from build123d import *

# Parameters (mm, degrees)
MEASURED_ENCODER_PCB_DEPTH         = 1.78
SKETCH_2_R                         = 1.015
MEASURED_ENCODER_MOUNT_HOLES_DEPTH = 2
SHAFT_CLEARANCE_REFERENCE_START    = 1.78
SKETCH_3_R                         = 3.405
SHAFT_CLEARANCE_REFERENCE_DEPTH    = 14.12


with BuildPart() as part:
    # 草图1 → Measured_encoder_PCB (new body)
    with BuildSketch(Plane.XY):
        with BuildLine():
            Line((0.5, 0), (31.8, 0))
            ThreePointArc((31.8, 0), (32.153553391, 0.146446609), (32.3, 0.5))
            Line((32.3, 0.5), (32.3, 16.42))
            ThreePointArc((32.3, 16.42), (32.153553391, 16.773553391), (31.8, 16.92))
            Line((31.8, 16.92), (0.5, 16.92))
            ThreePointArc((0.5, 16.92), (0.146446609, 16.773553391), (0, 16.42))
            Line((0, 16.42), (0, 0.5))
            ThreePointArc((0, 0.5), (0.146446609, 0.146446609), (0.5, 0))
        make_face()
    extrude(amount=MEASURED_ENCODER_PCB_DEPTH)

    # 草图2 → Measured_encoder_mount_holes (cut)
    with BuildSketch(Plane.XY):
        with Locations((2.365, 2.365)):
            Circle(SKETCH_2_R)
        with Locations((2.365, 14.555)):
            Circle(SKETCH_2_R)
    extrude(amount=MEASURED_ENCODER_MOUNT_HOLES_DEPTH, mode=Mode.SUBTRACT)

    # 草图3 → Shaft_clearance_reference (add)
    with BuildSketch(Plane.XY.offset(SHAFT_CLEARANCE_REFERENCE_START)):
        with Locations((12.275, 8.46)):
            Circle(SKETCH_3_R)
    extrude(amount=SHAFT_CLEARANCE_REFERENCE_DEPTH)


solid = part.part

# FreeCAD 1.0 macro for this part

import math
import FreeCAD as App
import Part
import Sketcher
from FreeCAD import Vector
Q = App.Units.Quantity

doc = App.newDocument("Part")
params = doc.addObject("Spreadsheet::Sheet", "Params")
for row, (alias, value) in enumerate([
    ("sketch1_radius", "0.5 mm"),
    ("sketch1_width", "31.3 mm"),
    ("sketch1_height", "15.92 mm"),
    ("pad1_length", "1.78 mm"),
    ("sketch2_diameter", "2.03 mm"),
    ("pocket1_length", "2 mm"),
    ("sketch3_diameter", "6.81 mm"),
    ("pad2_length", "14.12 mm"),
], start=1):
    params.set(f"A{row}", alias)
    params.set(f"B{row}", "=" + value)
    params.setAlias(f"B{row}", alias)

body = doc.addObject("PartDesign::Body", "Body")

# Sketch on XY plane
sketch1 = body.newObject("Sketcher::SketchObject", "Sketch")
sketch1.AttachmentSupport = (doc.getObject("XY_Plane"), [""])
sketch1.MapMode = "FlatFace"
sketch1.addGeometry([
    Part.LineSegment(Vector(0.5, 0, 0), Vector(31.8, 0, 0)),  # 0
    Part.ArcOfCircle(Part.Circle(Vector(31.8, 0.5, 0), Vector(0, 0, 1), 0.5), math.radians(-90), math.radians(0)),  # 1
    Part.LineSegment(Vector(32.3, 0.5, 0), Vector(32.3, 16.42, 0)),  # 2
    Part.ArcOfCircle(Part.Circle(Vector(31.8, 16.42, 0), Vector(0, 0, 1), 0.5), math.radians(0), math.radians(90)),  # 3
    Part.LineSegment(Vector(31.8, 16.92, 0), Vector(0.5, 16.92, 0)),  # 4
    Part.ArcOfCircle(Part.Circle(Vector(0.5, 16.42, 0), Vector(0, 0, 1), 0.5), math.radians(90), math.radians(180)),  # 5
    Part.LineSegment(Vector(0, 16.42, 0), Vector(0, 0.5, 0)),  # 6
    Part.ArcOfCircle(Part.Circle(Vector(0.5, 0.5, 0), Vector(0, 0, 1), 0.5), math.radians(180), math.radians(270)),  # 7
], False)
sketch1.addConstraint([
    Sketcher.Constraint("Tangent", 0, 2, 1, 1),
    Sketcher.Constraint("Tangent", 1, 2, 2, 1),
    Sketcher.Constraint("Tangent", 2, 2, 3, 1),
    Sketcher.Constraint("Tangent", 3, 2, 4, 1),
    Sketcher.Constraint("Tangent", 4, 2, 5, 1),
    Sketcher.Constraint("Tangent", 5, 2, 6, 1),
    Sketcher.Constraint("Tangent", 6, 2, 7, 1),
    Sketcher.Constraint("Tangent", 7, 2, 0, 1),
    Sketcher.Constraint("Horizontal", 0),
    Sketcher.Constraint("Vertical", 2),
    Sketcher.Constraint("Horizontal", 4),
    Sketcher.Constraint("Vertical", 6),
    Sketcher.Constraint("Equal", 1, 3),
    Sketcher.Constraint("Equal", 3, 5),
    Sketcher.Constraint("Equal", 5, 7),
    Sketcher.Constraint("PointOnObject", 0, 2, -1),
    Sketcher.Constraint("PointOnObject", 5, 2, -2),
    Sketcher.Constraint("Radius", 1, Q("0.5 mm")),
    Sketcher.Constraint("DistanceX", 0, 1, 0, 2, Q("31.3 mm")),
    Sketcher.Constraint("DistanceY", 2, 1, 2, 2, Q("15.92 mm")),
])
sketch1.setExpression("Constraints[17]", "Params.sketch1_radius")
sketch1.setExpression("Constraints[18]", "Params.sketch1_width")
sketch1.setExpression("Constraints[19]", "Params.sketch1_height")
pad1 = body.newObject("PartDesign::Pad", "Pad")
pad1.Profile = sketch1
pad1.setExpression("Length", "Params.pad1_length")

# Sketch on XY plane
sketch2 = body.newObject("Sketcher::SketchObject", "Sketch001")
sketch2.AttachmentSupport = (doc.getObject("XY_Plane"), [""])
sketch2.MapMode = "FlatFace"
sketch2.addGeometry([
    Part.Circle(Vector(2.4, 2.4, 0), Vector(0, 0, 1), 1),
    Part.Circle(Vector(2.4, 14.6, 0), Vector(0, 0, 1), 1),
], False)
sketch2.addConstraint([
    Sketcher.Constraint("Equal", 0, 1),
    Sketcher.Constraint("Vertical", 0, 3, 1, 3),
    Sketcher.Constraint("Diameter", 0, Q("2.03 mm")),
    Sketcher.Constraint("DistanceY", 0, 3, 1, 3, Q("12.19 mm")),
    Sketcher.Constraint("DistanceX", -1, 1, 0, 3, Q("2.365 mm")),
    Sketcher.Constraint("DistanceY", -1, 1, 0, 3, Q("2.365 mm")),
])
sketch2.setExpression("Constraints[2]", "Params.sketch2_diameter")
pocket1 = body.newObject("PartDesign::Pocket", "Pocket")
pocket1.Profile = sketch2
pocket1.setExpression("Length", "Params.pocket1_length")
pocket1.Reversed = True

# Sketch on XY plane
sketch3 = body.newObject("Sketcher::SketchObject", "Sketch002")
sketch3.AttachmentSupport = (doc.getObject("XY_Plane"), [""])
sketch3.MapMode = "FlatFace"
sketch3.AttachmentOffset = App.Placement(Vector(0, 0, 1.78), App.Rotation())
sketch3.addGeometry(Part.Circle(Vector(12.3, 8.5, 0), Vector(0, 0, 1), 3.4), False)
sketch3.addConstraint([
    Sketcher.Constraint("Diameter", 0, Q("6.81 mm")),
    Sketcher.Constraint("DistanceY", -1, 1, 0, 3, Q("8.46 mm")),
    Sketcher.Constraint("DistanceX", -1, 1, 0, 3, Q("12.275 mm")),
])
sketch3.setExpression("Constraints[0]", "Params.sketch3_diameter")
pad2 = body.newObject("PartDesign::Pad", "Pad001")
pad2.Profile = sketch3
pad2.setExpression("Length", "Params.pad2_length")

doc.recompute()
